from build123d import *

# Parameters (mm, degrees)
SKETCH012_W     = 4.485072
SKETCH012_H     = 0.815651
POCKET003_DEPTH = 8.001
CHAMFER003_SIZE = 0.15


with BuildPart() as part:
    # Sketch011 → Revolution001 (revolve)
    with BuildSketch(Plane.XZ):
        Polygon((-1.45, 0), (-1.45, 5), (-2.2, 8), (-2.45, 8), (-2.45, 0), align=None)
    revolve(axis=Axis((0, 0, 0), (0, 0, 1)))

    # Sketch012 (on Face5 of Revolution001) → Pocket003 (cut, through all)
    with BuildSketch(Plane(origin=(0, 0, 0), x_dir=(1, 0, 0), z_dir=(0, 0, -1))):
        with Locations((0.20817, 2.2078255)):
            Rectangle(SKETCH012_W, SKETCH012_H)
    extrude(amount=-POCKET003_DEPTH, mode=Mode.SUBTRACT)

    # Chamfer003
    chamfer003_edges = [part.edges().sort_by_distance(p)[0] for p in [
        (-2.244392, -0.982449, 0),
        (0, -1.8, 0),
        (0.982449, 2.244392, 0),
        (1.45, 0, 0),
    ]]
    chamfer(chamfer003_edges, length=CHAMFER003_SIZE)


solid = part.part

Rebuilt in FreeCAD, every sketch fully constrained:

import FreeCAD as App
import Part
import Sketcher
Q = App.Units.Quantity


def edges_at(feature, points):
    """Names of the edges that pass closest to the given points."""
    edges = feature.Shape.Edges
    near = lambda p: min(range(len(edges)), key=lambda i: edges[i].distToShape(Part.Vertex(*p))[0])
    return sorted({f"Edge{near(p) + 1}" for p in points})


def add_polygon(sketch, points):
    """Adds a closed chain of lines whose ends are joined by coincident constraints."""
    first, n = sketch.GeometryCount, len(points)
    for a, b in zip(points, points[1:] + points[:1]):
        sketch.addGeometry(Part.LineSegment(App.Vector(*a, 0), App.Vector(*b, 0)), False)
    for i in range(n):
        sketch.addConstraint(Sketcher.Constraint("Coincident", first + i, 2, first + (i + 1) % n, 1))

doc = App.newDocument("Part")
params = doc.addObject("Spreadsheet::Sheet", "Params")
for row, (alias, value) in enumerate([
    ("sketch1_width", "1 mm"),
    ("sketch1_height", "5 mm"),
    ("sketch1_height2", "8 mm"),
    ("sketch1_width2", "0.25 mm"),
    ("revolution_angle", "360 deg"),
    ("chamfer_size", "0.15 mm"),
], start=1):
    params.set(f"A{row}", alias)
    params.set(f"B{row}", "=" + value)
    params.setAlias(f"B{row}", alias)

body = doc.addObject("PartDesign::Body", "Body")

sketch1 = body.newObject("Sketcher::SketchObject", "Sketch")
sketch1.AttachmentSupport = (doc.getObject("XZ_Plane"), [""])
sketch1.MapMode = "FlatFace"
add_polygon(sketch1, [(-1.45, 0), (-1.45, 5), (-2.2, 8), (-2.45, 8), (-2.45, 0)])
sketch1.addConstraint(Sketcher.Constraint("Vertical", 0))
sketch1.addConstraint(Sketcher.Constraint("Horizontal", 2))
sketch1.addConstraint(Sketcher.Constraint("Vertical", 3))
sketch1.addConstraint(Sketcher.Constraint("Horizontal", 4))
sketch1.addConstraint(Sketcher.Constraint("PointOnObject", 3, 2, -1))
sketch1.addConstraint(Sketcher.Constraint("DistanceX", 4, 1, 4, 2, Q("1 mm")))
sketch1.addConstraint(Sketcher.Constraint("DistanceY", 0, 1, 0, 2, Q("5 mm")))
sketch1.addConstraint(Sketcher.Constraint("DistanceY", 3, 2, 3, 1, Q("8 mm")))
sketch1.addConstraint(Sketcher.Constraint("DistanceX", 2, 2, 2, 1, Q("0.25 mm")))
sketch1.addConstraint(Sketcher.Constraint("DistanceX", 1, 2, -1, 1, Q("2.2 mm")))
sketch1.setExpression("Constraints[10]", "Params.sketch1_width")
sketch1.setExpression("Constraints[11]", "Params.sketch1_height")
sketch1.setExpression("Constraints[12]", "Params.sketch1_height2")
sketch1.setExpression("Constraints[13]", "Params.sketch1_width2")
revolution = body.newObject("PartDesign::Revolution", "Revolution")
revolution.Profile = sketch1
revolution.ReferenceAxis = (sketch1, ["V_Axis"])
revolution.setExpression("Angle", "Params.revolution_angle")

sketch2 = body.newObject("Sketcher::SketchObject", "Sketch001")
sketch2.AttachmentSupport = (doc.getObject("XY_Plane"), [""])
sketch2.MapMode = "FlatFace"
add_polygon(sketch2, [(-2, -2.6), (-2, -1.8), (2.5, -1.8), (2.5, -2.6)])
sketch2.addConstraint(Sketcher.Constraint("Vertical", 0))
sketch2.addConstraint(Sketcher.Constraint("Horizontal", 1))
sketch2.addConstraint(Sketcher.Constraint("Vertical", 2))
sketch2.addConstraint(Sketcher.Constraint("Horizontal", 3))
sketch2.addConstraint(Sketcher.Constraint("DistanceY", 0, 2, -1, 1, Q("1.8 mm")))
sketch2.addConstraint(Sketcher.Constraint("DistanceX", 1, 1, 1, 2, Q("4.485072 mm")))
sketch2.addConstraint(Sketcher.Constraint("DistanceY", 0, 1, 0, 2, Q("0.815651 mm")))
sketch2.addConstraint(Sketcher.Constraint("DistanceX", 0, 2, -1, 1, Q("2.034366 mm")))
pocket1 = body.newObject("PartDesign::Pocket", "Pocket")
pocket1.Profile = sketch2
pocket1.Type = "ThroughAll"
pocket1.Reversed = True
doc.recompute()

chamfer = body.newObject("PartDesign::Chamfer", "Chamfer")
chamfer.Base = (pocket1, edges_at(pocket1, [
    (0, 2.45, 0),
    (0, -1.8, 0),
    (0, 2.45, 0),
    (1.45, 0, 0),
]))
chamfer.setExpression("Size", "Params.chamfer_size")

doc.recompute()
